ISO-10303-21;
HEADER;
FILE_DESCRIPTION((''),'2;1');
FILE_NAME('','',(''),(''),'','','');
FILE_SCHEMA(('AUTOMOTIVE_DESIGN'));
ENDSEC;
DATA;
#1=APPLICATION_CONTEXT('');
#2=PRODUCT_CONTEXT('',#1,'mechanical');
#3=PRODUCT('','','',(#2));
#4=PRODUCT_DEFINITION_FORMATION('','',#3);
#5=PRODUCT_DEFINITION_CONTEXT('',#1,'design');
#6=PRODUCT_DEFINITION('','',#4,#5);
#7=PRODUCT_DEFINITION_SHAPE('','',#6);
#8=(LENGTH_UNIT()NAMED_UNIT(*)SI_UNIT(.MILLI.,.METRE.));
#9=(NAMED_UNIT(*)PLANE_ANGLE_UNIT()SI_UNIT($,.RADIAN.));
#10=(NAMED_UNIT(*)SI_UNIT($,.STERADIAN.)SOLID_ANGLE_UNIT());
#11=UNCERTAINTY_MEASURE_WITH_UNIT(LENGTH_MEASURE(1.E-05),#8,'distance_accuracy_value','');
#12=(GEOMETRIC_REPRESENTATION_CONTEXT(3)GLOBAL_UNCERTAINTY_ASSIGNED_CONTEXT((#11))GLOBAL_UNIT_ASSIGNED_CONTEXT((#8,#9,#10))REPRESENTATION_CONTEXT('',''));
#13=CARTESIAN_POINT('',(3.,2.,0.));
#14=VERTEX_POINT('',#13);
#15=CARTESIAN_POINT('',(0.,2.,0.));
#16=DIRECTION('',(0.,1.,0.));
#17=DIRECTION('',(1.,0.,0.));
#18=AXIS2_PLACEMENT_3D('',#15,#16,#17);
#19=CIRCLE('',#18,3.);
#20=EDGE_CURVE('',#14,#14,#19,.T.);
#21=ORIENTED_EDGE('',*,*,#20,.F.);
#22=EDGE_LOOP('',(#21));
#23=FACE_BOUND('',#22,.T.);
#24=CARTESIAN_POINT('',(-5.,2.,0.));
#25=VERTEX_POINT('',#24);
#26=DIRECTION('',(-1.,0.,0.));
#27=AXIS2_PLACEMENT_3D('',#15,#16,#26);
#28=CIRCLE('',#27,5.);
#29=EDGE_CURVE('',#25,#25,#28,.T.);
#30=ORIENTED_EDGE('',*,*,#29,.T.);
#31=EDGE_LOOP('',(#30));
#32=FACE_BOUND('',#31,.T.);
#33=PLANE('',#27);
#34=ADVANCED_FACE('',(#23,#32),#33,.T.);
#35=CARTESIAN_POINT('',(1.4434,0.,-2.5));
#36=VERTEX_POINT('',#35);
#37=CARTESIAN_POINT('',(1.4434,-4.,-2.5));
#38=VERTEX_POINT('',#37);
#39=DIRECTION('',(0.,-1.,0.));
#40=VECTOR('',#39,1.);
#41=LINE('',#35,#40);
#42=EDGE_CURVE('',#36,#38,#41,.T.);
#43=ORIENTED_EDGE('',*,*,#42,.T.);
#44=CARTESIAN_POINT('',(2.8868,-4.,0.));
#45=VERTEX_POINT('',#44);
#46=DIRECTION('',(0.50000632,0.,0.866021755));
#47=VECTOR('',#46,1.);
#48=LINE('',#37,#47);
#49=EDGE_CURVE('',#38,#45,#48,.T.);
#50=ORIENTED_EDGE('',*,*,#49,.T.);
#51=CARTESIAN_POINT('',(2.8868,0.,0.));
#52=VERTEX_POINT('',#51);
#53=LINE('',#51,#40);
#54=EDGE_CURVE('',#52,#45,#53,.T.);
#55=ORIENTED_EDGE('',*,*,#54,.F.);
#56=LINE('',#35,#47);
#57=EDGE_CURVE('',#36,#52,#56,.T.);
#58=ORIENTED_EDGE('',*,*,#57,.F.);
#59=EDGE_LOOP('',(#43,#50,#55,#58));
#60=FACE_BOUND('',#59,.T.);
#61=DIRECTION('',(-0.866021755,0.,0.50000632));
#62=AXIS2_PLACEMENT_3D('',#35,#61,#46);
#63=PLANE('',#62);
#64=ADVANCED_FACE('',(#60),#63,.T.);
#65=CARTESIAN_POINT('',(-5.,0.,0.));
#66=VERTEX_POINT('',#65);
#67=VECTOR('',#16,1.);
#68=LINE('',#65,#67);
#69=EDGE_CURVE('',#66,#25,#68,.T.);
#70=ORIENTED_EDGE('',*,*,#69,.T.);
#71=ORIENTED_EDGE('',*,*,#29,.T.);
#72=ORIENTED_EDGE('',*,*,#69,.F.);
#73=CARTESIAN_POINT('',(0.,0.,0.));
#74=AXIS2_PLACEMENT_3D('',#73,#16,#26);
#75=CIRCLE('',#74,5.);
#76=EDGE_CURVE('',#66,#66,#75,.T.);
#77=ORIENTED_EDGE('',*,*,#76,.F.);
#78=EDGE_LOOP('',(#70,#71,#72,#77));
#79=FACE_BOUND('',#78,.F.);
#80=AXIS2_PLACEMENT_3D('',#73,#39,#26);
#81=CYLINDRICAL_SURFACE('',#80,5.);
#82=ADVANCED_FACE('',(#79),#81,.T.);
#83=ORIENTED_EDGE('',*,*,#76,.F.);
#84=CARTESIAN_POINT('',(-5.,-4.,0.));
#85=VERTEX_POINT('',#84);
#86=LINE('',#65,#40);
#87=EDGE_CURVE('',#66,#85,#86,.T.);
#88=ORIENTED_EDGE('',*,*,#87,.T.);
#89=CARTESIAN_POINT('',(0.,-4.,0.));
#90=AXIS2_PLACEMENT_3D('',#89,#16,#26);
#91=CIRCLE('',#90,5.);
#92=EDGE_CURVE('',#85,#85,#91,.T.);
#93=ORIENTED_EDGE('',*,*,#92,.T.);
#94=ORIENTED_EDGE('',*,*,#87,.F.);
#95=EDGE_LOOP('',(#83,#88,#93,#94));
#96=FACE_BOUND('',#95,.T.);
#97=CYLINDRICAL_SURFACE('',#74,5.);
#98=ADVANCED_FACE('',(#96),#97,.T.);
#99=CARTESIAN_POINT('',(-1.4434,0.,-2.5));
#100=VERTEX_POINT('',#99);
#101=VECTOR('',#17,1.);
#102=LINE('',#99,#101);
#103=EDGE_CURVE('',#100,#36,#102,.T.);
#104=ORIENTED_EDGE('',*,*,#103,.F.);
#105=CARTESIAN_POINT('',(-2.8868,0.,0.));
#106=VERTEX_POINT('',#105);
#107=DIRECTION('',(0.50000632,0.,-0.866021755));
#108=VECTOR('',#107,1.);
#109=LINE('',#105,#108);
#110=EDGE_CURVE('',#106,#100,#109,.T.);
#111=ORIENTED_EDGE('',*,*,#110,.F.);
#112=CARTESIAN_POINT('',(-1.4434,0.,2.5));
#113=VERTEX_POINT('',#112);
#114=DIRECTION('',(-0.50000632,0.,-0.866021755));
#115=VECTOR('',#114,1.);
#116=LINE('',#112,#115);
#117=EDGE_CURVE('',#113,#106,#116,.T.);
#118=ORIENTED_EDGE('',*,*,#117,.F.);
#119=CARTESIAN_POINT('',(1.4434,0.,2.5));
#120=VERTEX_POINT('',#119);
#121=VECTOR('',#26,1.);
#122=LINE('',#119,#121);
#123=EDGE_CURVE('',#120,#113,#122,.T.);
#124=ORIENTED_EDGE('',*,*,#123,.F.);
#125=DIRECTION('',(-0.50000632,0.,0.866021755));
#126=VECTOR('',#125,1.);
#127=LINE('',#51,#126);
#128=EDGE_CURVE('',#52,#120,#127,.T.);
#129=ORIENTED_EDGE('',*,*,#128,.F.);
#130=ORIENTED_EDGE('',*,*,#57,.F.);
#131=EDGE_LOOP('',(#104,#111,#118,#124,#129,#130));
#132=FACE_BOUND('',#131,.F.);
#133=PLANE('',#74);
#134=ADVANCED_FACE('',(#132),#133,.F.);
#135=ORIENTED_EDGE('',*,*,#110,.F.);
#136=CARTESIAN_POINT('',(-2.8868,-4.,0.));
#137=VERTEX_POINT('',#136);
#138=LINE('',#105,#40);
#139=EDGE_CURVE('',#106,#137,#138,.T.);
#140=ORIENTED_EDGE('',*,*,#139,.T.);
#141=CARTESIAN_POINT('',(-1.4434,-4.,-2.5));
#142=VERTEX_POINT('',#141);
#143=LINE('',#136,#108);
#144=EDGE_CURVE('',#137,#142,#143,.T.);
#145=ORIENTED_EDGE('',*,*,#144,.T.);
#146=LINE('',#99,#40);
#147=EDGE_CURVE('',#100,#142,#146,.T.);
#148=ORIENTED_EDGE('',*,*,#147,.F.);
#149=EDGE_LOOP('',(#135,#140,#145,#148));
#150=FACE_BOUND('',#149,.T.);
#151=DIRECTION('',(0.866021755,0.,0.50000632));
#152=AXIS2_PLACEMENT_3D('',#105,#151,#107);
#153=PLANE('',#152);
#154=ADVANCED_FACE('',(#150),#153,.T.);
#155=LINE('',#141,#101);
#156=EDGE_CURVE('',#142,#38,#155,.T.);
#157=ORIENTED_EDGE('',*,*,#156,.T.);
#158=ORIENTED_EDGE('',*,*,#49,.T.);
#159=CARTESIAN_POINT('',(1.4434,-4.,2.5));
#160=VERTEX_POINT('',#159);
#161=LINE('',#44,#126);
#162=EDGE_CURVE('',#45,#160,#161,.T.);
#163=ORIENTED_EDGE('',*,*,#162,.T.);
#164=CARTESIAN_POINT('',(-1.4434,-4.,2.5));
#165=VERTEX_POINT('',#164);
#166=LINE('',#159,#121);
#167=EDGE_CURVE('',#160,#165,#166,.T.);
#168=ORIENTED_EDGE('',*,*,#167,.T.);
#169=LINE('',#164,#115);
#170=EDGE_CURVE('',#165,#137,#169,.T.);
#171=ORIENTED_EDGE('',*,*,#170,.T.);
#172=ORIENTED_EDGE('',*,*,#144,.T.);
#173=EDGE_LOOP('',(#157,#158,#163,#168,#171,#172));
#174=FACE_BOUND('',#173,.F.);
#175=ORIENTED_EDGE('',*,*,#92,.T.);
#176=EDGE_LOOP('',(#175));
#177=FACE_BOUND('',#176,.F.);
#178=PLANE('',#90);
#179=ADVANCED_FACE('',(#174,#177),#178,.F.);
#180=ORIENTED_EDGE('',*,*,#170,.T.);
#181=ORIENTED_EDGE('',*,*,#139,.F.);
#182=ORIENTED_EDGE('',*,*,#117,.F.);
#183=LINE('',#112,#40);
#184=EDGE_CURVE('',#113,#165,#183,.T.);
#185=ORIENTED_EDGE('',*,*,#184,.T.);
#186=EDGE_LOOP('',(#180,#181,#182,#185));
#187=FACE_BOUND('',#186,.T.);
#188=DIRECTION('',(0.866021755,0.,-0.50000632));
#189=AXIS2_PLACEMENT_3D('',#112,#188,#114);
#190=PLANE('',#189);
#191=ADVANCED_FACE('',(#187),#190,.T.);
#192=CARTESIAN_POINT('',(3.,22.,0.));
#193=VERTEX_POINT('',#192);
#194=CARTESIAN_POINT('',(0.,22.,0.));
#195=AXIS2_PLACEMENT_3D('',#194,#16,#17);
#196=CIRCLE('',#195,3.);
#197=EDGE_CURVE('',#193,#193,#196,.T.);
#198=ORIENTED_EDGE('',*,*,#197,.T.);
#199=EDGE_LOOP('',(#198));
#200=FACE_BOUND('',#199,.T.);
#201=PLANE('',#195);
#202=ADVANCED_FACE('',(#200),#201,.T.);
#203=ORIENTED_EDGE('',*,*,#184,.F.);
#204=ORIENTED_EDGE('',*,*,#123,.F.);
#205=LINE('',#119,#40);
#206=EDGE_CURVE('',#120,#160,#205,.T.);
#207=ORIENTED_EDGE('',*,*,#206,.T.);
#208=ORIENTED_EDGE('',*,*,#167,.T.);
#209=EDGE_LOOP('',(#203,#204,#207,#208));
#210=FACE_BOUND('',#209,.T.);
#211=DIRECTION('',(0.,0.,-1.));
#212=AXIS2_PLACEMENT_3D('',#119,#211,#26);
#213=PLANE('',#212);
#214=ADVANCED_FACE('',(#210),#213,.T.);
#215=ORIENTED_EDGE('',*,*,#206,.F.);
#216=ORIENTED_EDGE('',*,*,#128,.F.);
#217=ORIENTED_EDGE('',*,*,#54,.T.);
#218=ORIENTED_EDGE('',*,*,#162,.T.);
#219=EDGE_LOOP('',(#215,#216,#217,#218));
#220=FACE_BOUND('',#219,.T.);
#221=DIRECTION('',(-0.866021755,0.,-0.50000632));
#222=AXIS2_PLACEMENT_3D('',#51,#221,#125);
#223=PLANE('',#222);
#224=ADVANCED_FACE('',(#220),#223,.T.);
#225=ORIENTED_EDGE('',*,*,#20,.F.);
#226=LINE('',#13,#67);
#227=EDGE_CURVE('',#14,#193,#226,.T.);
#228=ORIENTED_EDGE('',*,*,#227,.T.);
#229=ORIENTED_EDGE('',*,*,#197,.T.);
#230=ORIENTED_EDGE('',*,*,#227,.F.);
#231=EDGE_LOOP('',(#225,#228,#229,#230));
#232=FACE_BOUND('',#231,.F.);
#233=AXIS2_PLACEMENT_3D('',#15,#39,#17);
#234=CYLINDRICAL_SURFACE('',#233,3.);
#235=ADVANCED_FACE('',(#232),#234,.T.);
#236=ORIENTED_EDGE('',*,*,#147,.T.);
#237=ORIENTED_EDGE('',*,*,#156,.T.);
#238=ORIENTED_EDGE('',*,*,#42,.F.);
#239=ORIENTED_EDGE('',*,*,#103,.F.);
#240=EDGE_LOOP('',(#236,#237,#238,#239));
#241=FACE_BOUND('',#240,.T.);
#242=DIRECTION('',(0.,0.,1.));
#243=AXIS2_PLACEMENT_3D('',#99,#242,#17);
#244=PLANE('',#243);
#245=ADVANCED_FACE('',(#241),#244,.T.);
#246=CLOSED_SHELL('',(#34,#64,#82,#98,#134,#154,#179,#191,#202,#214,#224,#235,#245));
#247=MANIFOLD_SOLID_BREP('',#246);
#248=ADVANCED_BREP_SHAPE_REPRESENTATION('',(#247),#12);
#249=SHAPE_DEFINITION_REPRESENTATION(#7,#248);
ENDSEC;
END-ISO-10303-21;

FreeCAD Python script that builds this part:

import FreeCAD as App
import Part
import Sketcher
Q = App.Units.Quantity

doc = App.newDocument("Part")
body = doc.addObject("PartDesign::Body", "Body")

sketch1 = body.newObject("Sketcher::SketchObject", "Sketch")
sketch1.AttachmentSupport = (doc.getObject("XZ_Plane"), [""])
sketch1.MapMode = "FlatFace"
sketch1.addGeometry(Part.Circle(App.Vector(0, 0, 0), App.Vector(0, 0, 1), 5), False)
sketch1.addConstraint(Sketcher.Constraint("Coincident", 0, 3, -1, 1))
sketch1.addConstraint(Sketcher.Constraint("Diameter", 0, 10.0))
pad1 = body.newObject("PartDesign::Pad", "Pad")
pad1.Profile = sketch1
pad1.Length = 2
pad1.Reversed = True

sketch2 = body.newObject("Sketcher::SketchObject", "Sketch001")
sketch2.AttachmentSupport = (doc.getObject("XZ_Plane"), [""])
sketch2.MapMode = "FlatFace"
sketch2.addGeometry(Part.Circle(App.Vector(0, 0, 0), App.Vector(0, 0, 1), 5), False)
sketch2.addGeometry(Part.LineSegment(App.Vector(-1.4434, 2.5, 0), App.Vector(-2.8868, 0, 0)), False)
sketch2.addGeometry(Part.LineSegment(App.Vector(-2.8868, 0, 0), App.Vector(-1.4434, -2.5, 0)), False)
sketch2.addGeometry(Part.LineSegment(App.Vector(-1.4434, -2.5, 0), App.Vector(1.4434, -2.5, 0)), False)
sketch2.addGeometry(Part.LineSegment(App.Vector(1.4434, -2.5, 0), App.Vector(2.8868, 0, 0)), False)
sketch2.addGeometry(Part.LineSegment(App.Vector(2.8868, 0, 0), App.Vector(1.4434, 2.5, 0)), False)
sketch2.addGeometry(Part.LineSegment(App.Vector(1.4434, 2.5, 0), App.Vector(-1.4434, 2.5, 0)), False)
sketch2.addConstraint(Sketcher.Constraint("Coincident", 1, 2, 2, 1))
sketch2.addConstraint(Sketcher.Constraint("Coincident", 2, 2, 3, 1))
sketch2.addConstraint(Sketcher.Constraint("Coincident", 3, 2, 4, 1))
sketch2.addConstraint(Sketcher.Constraint("Coincident", 4, 2, 5, 1))
sketch2.addConstraint(Sketcher.Constraint("Coincident", 5, 2, 6, 1))
sketch2.addConstraint(Sketcher.Constraint("Coincident", 6, 2, 1, 1))
sketch2.addConstraint(Sketcher.Constraint("Horizontal", 3))
sketch2.addConstraint(Sketcher.Constraint("Horizontal", 6))
sketch2.addConstraint(Sketcher.Constraint("Coincident", 0, 3, -1, 1))
sketch2.addConstraint(Sketcher.Constraint("Symmetric", 1, 2, 4, 2, -1, 1))
sketch2.addConstraint(Sketcher.Constraint("Symmetric", 2, 2, 5, 2, -1, 1))
sketch2.addConstraint(Sketcher.Constraint("PointOnObject", 1, 2, -1))
sketch2.addConstraint(Sketcher.Constraint("Parallel", 1, 4))
sketch2.addConstraint(Sketcher.Constraint("Vertical", 3, 2, 5, 2))
sketch2.addConstraint(Sketcher.Constraint("Diameter", 0, 10.0))
sketch2.addConstraint(Sketcher.Constraint("DistanceY", 3, 2, 5, 2, 5.0))
sketch2.addConstraint(Sketcher.Constraint("Angle", 1, Q("-120.0004 deg")))
sketch2.addConstraint(Sketcher.Constraint("DistanceX", 3, 1, 3, 2, 2.8868))
pad2 = body.newObject("PartDesign::Pad", "Pad001")
pad2.Profile = sketch2
pad2.Length = 4

sketch3 = body.newObject("Sketcher::SketchObject", "Sketch002")
sketch3.AttachmentSupport = (doc.getObject("XZ_Plane"), [""])
sketch3.MapMode = "FlatFace"
sketch3.AttachmentOffset = App.Placement(App.Vector(0, 0, -2), App.Rotation())
sketch3.addGeometry(Part.Circle(App.Vector(0, 0, 0), App.Vector(0, 0, 1), 3), False)
sketch3.addConstraint(Sketcher.Constraint("Coincident", 0, 3, -1, 1))
sketch3.addConstraint(Sketcher.Constraint("Diameter", 0, 6.0))
pad3 = body.newObject("PartDesign::Pad", "Pad002")
pad3.Profile = sketch3
pad3.Length = 20
pad3.Reversed = True

doc.recompute()
